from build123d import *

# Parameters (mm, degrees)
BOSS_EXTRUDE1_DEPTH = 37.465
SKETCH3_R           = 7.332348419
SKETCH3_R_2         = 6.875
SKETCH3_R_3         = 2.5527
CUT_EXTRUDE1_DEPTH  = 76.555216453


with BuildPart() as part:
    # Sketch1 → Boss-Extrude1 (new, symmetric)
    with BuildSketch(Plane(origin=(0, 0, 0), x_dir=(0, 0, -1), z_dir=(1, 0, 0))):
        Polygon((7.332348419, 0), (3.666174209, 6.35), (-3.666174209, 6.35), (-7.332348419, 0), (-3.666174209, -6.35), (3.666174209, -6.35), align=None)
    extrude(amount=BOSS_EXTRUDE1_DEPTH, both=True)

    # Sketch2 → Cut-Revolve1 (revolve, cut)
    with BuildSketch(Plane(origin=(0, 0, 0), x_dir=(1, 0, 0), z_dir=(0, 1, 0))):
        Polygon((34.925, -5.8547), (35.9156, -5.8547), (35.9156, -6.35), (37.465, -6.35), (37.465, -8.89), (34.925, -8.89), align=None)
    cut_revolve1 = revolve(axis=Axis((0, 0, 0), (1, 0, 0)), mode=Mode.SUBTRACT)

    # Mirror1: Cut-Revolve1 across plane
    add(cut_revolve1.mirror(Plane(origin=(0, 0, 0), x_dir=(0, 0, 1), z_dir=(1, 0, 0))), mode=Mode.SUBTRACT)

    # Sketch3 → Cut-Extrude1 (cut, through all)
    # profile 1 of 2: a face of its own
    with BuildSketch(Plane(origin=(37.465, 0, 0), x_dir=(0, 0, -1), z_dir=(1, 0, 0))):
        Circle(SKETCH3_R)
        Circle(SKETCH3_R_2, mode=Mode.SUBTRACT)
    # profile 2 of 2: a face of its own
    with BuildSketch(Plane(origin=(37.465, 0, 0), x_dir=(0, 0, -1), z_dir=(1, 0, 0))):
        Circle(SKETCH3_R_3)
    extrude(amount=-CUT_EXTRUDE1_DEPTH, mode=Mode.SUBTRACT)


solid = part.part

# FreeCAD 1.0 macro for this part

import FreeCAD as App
import Part
import Sketcher
Q = App.Units.Quantity


def add_polygon(sketch, points):
    """Adds a closed chain of lines whose ends are joined by coincident constraints."""
    first, n = sketch.GeometryCount, len(points)
    for a, b in zip(points, points[1:] + points[:1]):
        sketch.addGeometry(Part.LineSegment(App.Vector(*a, 0), App.Vector(*b, 0)), False)
    for i in range(n):
        sketch.addConstraint(Sketcher.Constraint("Coincident", first + i, 2, first + (i + 1) % n, 1))

doc = App.newDocument("Part")
body = doc.addObject("PartDesign::Body", "Body")

sketch1 = body.newObject("Sketcher::SketchObject", "Sketch")
sketch1.AttachmentSupport = (doc.getObject("YZ_Plane"), [""])
sketch1.MapMode = "FlatFace"
add_polygon(sketch1, [(0, -7), (6, -4), (6, 4), (0, 7), (-6, 4), (-6, -4)])
sketch1.addConstraint(Sketcher.Constraint("Vertical", 1))
sketch1.addConstraint(Sketcher.Constraint("Vertical", 4))
sketch1.addConstraint(Sketcher.Constraint("Symmetric", 0, 2, 3, 2, -1, 1))
sketch1.addConstraint(Sketcher.Constraint("Symmetric", 2, 2, 5, 2, -1, 1))
sketch1.addConstraint(Sketcher.Constraint("PointOnObject", 2, 2, -2))
sketch1.addConstraint(Sketcher.Constraint("Parallel", 2, 5))
sketch1.addConstraint(Sketcher.Constraint("Horizontal", 1, 2, 3, 2))
sketch1.addConstraint(Sketcher.Constraint("Angle", 0, Q("30 deg")))
sketch1.addConstraint(Sketcher.Constraint("DistanceX", 3, 2, 1, 2, Q("0.5 in")))
sketch1.addConstraint(Sketcher.Constraint("DistanceY", 1, 1, 1, 2, 7.332348))
pad1 = body.newObject("PartDesign::Pad", "Pad")
pad1.Profile = sketch1
pad1.Length = Q("2.95 in")
pad1.Midplane = True

sketch2 = body.newObject("Sketcher::SketchObject", "Sketch001")
sketch2.AttachmentSupport = (doc.getObject("XZ_Plane"), [""])
sketch2.MapMode = "FlatFace"
add_polygon(sketch2, [(35.92, 5.85), (34.92, 5.85), (34.92, 8.89), (37.47, 8.89), (37.47, 6.35), (35.92, 6.35)])
sketch2.addConstraint(Sketcher.Constraint("Horizontal", 0))
sketch2.addConstraint(Sketcher.Constraint("Vertical", 1))
sketch2.addConstraint(Sketcher.Constraint("Horizontal", 2))
sketch2.addConstraint(Sketcher.Constraint("Vertical", 3))
sketch2.addConstraint(Sketcher.Constraint("Horizontal", 4))
sketch2.addConstraint(Sketcher.Constraint("Vertical", 5))
sketch2.addConstraint(Sketcher.Constraint("Equal", 2, 3))
sketch2.addConstraint(Sketcher.Constraint("DistanceX", 2, 1, 2, 2, Q("0.1 in")))
sketch2.addConstraint(Sketcher.Constraint("DistanceX", 0, 2, 0, 1, Q("0.039 in")))
sketch2.addConstraint(Sketcher.Constraint("DistanceY", -1, 1, 1, 2, Q("0.35 in")))
sketch2.addConstraint(Sketcher.Constraint("DistanceY", 1, 1, 1, 2, Q("0.1195 in")))
sketch2.addConstraint(Sketcher.Constraint("DistanceX", -1, 1, 0, 2, Q("1.375 in")))
groove = body.newObject("PartDesign::Groove", "Groove")
groove.Profile = sketch2
groove.ReferenceAxis = (sketch2, ["H_Axis"])
groove.Angle = 360
doc.recompute()

mirrored = body.newObject("PartDesign::Mirrored", "Mirrored")
mirrored.Originals = [groove]
mirrored.MirrorPlane = (doc.getObject("YZ_Plane"), [""])
body.Tip = mirrored

sketch3 = body.newObject("Sketcher::SketchObject", "Sketch002")
sketch3.AttachmentSupport = (doc.getObject("YZ_Plane"), [""])
sketch3.MapMode = "FlatFace"
sketch3.AttachmentOffset = App.Placement(App.Vector(0, 0, 1.475 * 25.4), App.Rotation())
sketch3.addGeometry(Part.Circle(App.Vector(0, 0, 0), App.Vector(0, 0, 1), 7.3), False)
sketch3.addGeometry(Part.Circle(App.Vector(0, 0, 0), App.Vector(0, 0, 1), 6.9), False)
sketch3.addGeometry(Part.Circle(App.Vector(0, 0, 0), App.Vector(0, 0, 1), 2.6), False)
sketch3.addConstraint(Sketcher.Constraint("Coincident", 0, 3, -1, 1))
sketch3.addConstraint(Sketcher.Constraint("Coincident", 1, 3, -1, 1))
sketch3.addConstraint(Sketcher.Constraint("Coincident", 2, 3, -1, 1))
sketch3.addConstraint(Sketcher.Constraint("Diameter", 2, Q("0.201 in")))
sketch3.addConstraint(Sketcher.Constraint("Diameter", 1, 13.75))
sketch3.addConstraint(Sketcher.Constraint("Diameter", 0, 14.664697))
pocket1 = body.newObject("PartDesign::Pocket", "Pocket")
pocket1.Profile = sketch3
pocket1.Length = 76.555216

doc.recompute()
